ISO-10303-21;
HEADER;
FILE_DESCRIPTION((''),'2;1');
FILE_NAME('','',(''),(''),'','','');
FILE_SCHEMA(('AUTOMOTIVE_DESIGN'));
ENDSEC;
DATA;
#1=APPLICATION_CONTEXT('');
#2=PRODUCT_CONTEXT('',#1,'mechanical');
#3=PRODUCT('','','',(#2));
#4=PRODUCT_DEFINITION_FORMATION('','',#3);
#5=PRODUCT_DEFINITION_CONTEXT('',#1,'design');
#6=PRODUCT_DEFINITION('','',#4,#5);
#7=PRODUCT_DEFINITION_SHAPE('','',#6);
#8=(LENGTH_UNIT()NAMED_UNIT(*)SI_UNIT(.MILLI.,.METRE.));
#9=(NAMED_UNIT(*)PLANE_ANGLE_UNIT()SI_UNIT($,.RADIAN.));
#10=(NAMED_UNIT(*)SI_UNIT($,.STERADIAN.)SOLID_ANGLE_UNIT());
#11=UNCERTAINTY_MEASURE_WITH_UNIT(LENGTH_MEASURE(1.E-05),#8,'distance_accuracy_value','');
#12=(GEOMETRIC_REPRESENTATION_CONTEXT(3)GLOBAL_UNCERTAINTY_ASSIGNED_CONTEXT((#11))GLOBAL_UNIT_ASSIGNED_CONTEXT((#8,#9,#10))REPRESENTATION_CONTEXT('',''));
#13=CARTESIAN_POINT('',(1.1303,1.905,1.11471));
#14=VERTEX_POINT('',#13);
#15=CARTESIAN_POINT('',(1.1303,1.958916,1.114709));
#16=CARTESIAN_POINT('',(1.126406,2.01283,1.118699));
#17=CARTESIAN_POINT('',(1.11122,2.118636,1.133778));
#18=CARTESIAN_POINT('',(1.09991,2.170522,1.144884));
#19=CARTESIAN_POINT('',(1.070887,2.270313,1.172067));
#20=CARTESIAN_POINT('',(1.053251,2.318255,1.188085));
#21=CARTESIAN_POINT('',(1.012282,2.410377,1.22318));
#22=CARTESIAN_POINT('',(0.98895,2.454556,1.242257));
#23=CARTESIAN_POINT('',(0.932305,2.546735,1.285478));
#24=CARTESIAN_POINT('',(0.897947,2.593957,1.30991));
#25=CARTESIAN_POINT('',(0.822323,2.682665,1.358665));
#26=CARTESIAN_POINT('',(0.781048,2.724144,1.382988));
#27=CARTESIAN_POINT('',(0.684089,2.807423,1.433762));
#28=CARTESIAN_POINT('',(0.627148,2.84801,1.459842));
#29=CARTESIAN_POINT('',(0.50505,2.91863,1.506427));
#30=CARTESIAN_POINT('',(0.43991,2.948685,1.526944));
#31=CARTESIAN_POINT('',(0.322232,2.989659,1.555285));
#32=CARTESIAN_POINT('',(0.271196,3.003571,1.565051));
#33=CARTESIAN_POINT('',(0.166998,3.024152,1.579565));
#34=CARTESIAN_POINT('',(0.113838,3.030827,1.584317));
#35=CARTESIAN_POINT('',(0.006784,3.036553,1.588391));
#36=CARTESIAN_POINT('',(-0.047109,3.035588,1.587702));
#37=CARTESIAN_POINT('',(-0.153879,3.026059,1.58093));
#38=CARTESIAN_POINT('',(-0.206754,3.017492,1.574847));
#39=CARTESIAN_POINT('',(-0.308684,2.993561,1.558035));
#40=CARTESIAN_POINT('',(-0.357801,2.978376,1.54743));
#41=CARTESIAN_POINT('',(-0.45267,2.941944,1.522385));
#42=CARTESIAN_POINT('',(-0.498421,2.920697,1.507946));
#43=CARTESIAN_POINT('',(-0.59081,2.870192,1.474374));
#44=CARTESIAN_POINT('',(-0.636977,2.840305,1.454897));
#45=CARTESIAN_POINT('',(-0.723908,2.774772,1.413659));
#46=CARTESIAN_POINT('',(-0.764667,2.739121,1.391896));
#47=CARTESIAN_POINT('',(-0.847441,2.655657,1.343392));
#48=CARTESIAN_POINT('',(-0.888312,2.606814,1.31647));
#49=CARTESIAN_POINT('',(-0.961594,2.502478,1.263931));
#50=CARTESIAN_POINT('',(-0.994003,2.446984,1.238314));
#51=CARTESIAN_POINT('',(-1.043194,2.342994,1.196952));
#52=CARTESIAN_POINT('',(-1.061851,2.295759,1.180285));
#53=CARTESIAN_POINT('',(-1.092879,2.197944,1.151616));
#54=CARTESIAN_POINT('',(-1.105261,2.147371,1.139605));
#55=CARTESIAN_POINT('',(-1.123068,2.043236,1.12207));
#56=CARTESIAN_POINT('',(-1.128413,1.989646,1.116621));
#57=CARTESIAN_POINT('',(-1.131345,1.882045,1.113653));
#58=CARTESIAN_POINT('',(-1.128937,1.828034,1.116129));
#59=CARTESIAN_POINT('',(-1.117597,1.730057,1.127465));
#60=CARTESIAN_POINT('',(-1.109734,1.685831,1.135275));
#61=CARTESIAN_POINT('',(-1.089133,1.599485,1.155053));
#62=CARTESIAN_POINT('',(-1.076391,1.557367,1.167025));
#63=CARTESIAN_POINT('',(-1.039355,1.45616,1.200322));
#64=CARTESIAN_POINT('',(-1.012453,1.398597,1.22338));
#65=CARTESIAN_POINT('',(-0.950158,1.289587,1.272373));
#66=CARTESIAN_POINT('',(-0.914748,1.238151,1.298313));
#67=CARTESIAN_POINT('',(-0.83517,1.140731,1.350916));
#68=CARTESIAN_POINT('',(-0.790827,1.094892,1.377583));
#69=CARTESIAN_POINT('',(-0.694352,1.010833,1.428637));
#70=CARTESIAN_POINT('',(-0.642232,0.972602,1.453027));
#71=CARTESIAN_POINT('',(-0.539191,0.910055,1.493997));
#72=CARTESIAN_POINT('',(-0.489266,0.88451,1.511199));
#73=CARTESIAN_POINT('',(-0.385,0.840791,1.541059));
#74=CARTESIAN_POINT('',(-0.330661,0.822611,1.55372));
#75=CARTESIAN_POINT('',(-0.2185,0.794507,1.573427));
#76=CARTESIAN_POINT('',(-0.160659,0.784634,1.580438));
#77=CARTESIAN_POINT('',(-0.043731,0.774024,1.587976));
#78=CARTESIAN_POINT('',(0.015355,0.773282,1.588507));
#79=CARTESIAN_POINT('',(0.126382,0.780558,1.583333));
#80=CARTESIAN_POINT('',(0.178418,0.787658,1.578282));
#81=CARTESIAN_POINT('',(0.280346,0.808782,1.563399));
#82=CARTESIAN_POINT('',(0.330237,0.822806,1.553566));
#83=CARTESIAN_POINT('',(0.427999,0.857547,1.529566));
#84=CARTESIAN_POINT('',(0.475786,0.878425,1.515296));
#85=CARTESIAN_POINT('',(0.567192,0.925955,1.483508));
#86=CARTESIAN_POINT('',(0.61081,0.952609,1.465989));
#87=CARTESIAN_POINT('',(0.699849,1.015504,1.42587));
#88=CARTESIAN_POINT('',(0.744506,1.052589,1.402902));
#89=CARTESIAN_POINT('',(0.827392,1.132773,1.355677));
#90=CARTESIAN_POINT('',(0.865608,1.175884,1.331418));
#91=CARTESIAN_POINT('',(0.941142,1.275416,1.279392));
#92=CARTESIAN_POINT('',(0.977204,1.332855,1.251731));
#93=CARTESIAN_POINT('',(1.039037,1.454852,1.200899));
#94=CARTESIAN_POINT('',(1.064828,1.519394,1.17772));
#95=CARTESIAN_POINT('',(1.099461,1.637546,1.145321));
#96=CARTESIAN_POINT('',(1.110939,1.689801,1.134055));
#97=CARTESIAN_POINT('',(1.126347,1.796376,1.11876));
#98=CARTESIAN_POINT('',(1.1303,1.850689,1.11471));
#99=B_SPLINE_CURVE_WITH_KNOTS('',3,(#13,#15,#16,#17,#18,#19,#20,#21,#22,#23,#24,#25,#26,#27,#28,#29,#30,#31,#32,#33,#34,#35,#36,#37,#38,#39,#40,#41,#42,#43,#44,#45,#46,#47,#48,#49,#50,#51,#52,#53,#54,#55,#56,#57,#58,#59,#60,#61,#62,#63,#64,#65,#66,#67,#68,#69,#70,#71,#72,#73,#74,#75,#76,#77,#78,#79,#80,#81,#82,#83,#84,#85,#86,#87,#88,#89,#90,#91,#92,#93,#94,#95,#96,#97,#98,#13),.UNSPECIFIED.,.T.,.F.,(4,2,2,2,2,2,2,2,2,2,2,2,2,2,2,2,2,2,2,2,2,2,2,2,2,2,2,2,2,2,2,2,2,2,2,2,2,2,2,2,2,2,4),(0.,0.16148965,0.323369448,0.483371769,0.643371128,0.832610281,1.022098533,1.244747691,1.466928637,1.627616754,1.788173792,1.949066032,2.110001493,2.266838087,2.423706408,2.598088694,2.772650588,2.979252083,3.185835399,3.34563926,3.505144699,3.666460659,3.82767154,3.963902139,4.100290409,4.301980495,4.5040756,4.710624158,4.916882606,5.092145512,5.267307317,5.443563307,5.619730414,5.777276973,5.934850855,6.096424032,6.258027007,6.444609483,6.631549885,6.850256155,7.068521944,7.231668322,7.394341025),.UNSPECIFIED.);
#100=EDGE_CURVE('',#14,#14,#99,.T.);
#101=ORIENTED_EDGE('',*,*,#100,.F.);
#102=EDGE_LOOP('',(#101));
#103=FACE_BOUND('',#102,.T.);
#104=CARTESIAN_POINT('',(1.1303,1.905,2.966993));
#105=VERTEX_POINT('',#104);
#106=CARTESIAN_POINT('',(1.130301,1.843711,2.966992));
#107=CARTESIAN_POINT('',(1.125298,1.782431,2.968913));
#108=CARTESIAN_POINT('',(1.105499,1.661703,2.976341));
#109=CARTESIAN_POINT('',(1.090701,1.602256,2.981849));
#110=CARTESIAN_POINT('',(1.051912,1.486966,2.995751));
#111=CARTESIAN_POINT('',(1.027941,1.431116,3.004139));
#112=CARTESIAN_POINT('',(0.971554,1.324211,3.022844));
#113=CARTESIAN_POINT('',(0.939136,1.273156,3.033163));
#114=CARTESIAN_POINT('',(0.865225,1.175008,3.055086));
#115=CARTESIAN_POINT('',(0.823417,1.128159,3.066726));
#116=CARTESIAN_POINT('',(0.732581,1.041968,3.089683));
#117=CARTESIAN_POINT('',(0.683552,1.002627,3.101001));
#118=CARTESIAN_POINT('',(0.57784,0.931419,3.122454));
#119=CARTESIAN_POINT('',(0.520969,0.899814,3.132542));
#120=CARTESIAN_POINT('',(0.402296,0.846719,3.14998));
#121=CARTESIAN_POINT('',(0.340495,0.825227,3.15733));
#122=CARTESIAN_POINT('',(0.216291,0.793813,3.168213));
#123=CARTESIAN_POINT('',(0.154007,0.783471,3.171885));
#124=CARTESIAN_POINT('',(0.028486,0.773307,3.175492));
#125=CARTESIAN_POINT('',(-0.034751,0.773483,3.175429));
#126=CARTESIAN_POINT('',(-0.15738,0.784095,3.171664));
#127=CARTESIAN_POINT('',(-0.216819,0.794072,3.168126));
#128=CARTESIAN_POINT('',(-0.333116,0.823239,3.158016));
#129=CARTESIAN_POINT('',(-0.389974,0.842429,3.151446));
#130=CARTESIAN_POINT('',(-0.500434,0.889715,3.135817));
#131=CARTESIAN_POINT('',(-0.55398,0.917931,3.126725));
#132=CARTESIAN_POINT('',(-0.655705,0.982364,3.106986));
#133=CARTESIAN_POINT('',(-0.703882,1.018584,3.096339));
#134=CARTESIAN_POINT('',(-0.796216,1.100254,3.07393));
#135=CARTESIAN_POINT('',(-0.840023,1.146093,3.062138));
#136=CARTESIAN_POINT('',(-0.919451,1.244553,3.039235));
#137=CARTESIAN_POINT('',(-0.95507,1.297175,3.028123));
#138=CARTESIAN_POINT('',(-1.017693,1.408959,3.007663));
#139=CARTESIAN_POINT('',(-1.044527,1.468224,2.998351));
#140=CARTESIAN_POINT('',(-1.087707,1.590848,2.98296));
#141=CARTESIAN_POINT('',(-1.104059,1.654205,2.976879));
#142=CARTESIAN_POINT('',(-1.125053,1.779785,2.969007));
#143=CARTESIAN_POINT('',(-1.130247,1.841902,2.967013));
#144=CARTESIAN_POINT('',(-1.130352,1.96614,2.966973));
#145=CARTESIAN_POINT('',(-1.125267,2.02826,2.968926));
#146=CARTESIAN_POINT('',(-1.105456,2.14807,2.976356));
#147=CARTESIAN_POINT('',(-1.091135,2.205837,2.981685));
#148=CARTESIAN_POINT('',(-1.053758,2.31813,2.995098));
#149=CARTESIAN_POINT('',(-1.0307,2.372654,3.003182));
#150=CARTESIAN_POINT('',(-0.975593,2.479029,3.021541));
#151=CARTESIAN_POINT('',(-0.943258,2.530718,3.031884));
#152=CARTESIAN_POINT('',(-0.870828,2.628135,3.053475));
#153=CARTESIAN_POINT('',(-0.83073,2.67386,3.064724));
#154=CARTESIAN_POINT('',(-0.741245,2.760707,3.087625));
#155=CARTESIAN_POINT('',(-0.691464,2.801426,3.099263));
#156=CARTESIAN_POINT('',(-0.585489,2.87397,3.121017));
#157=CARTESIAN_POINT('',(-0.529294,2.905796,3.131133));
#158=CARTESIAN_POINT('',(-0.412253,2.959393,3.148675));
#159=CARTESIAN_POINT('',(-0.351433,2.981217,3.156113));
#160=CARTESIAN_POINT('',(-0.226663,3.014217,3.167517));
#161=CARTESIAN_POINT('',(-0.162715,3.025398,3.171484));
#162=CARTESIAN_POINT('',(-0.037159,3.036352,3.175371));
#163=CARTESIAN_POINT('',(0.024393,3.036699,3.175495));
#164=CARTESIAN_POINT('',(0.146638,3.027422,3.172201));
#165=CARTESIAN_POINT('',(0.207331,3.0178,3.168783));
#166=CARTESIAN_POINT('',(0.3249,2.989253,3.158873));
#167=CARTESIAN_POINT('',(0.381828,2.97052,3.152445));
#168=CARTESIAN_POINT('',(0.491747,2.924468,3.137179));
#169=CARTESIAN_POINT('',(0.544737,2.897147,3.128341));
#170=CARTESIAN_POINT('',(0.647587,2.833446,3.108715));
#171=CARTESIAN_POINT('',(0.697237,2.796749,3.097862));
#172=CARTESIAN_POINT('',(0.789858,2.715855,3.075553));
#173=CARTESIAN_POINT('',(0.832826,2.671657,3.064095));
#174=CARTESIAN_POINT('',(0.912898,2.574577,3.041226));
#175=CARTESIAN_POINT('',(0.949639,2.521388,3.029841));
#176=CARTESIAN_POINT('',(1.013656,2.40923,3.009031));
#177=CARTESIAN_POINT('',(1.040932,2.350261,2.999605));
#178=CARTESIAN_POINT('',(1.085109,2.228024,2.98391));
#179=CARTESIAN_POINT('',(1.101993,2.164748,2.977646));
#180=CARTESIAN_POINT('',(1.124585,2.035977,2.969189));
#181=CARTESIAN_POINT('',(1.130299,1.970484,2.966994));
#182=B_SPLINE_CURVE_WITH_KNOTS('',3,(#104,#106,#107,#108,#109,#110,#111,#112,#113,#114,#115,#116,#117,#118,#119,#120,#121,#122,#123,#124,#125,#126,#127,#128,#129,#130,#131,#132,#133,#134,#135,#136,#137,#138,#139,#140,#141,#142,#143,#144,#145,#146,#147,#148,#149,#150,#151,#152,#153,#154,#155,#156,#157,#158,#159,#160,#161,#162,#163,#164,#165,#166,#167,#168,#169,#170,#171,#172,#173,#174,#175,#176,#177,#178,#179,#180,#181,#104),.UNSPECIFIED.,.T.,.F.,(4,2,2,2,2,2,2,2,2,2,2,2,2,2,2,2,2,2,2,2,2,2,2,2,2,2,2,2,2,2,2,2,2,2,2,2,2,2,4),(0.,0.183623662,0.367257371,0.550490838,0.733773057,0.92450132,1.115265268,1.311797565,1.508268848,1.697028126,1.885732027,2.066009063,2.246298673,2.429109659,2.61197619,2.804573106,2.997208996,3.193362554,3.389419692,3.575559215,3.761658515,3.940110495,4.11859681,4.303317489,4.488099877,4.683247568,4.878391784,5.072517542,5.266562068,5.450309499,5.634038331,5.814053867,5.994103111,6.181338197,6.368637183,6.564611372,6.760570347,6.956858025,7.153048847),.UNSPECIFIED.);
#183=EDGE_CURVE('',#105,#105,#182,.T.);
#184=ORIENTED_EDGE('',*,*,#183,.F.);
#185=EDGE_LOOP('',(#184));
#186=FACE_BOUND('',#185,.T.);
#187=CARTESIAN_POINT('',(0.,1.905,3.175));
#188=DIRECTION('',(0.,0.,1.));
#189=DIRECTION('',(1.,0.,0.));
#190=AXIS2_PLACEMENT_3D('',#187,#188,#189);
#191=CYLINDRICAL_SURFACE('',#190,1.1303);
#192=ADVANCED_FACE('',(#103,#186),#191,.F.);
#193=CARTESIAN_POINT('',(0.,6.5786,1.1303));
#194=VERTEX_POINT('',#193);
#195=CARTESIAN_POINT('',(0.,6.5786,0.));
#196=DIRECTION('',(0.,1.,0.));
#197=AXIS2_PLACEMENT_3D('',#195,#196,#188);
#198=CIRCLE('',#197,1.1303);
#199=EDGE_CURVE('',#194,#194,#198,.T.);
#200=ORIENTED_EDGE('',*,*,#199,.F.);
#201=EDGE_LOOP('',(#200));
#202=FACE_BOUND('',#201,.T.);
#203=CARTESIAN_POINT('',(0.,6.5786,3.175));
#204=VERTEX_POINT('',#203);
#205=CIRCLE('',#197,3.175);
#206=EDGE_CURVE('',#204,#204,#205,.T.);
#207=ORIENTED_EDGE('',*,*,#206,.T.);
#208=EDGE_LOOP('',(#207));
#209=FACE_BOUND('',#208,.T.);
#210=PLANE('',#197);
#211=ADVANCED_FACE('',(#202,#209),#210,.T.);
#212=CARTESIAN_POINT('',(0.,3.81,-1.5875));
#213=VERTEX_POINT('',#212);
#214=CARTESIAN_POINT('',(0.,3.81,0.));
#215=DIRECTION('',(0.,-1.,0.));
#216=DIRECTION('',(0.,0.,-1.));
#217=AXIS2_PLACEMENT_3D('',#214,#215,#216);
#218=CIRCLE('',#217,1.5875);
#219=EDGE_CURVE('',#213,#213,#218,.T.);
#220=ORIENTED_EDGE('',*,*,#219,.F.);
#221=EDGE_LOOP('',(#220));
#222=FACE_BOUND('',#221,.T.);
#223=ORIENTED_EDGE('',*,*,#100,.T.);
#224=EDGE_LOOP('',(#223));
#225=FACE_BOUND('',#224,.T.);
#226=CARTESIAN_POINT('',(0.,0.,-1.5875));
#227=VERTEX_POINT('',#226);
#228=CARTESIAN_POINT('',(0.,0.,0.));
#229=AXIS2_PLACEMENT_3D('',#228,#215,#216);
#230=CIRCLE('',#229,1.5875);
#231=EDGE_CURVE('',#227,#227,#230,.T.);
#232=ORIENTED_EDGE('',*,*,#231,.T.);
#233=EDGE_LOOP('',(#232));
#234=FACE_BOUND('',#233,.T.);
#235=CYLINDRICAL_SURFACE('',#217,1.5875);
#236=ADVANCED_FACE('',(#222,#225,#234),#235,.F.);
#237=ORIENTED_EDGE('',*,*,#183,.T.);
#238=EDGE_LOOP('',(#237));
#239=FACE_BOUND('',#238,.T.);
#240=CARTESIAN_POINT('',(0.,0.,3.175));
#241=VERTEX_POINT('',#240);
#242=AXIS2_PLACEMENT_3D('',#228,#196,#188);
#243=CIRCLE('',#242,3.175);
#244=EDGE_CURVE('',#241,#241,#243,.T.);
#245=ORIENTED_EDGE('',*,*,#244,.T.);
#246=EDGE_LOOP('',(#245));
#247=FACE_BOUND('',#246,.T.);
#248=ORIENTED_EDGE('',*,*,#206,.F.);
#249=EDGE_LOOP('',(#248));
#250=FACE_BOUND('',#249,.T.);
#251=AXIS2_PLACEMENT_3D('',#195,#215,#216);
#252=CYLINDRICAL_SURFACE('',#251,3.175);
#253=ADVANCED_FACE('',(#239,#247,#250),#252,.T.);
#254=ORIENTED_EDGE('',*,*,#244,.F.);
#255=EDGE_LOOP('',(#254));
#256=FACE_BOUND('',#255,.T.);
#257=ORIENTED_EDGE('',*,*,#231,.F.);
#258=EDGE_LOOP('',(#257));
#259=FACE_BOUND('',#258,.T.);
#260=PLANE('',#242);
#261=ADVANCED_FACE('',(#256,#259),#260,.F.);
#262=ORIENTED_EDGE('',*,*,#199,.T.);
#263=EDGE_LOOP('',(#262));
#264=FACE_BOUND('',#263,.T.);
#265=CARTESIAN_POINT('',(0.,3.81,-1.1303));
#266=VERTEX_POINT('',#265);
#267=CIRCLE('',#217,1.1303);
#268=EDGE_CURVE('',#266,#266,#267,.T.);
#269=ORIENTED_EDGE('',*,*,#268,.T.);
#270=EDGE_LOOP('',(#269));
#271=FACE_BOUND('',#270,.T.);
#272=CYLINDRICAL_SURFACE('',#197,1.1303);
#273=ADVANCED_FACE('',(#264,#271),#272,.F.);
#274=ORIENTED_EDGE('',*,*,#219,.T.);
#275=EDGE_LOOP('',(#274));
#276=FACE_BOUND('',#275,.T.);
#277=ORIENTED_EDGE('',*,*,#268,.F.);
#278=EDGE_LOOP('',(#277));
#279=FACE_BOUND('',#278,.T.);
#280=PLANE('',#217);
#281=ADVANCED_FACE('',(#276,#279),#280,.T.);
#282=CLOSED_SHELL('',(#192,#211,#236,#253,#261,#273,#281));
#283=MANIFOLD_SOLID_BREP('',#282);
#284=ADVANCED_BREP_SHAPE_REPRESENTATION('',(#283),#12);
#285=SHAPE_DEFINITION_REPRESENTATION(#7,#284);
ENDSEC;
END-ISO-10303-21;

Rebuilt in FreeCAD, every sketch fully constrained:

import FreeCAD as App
import Part
import Sketcher
from FreeCAD import Vector
Q = App.Units.Quantity

doc = App.newDocument("Part")
body = doc.addObject("PartDesign::Body", "Body")

# Sketch on XZ plane
sketch1 = body.newObject("Sketcher::SketchObject", "Sketch")
sketch1.AttachmentSupport = (doc.getObject("XZ_Plane"), [""])
sketch1.MapMode = "FlatFace"
sketch1.addGeometry(Part.Circle(Vector(0, 0, 0), Vector(0, 0, 1), 3.175), False)
sketch1.addConstraint([
    Sketcher.Constraint("Coincident", 0, 3, -1, 1),
    Sketcher.Constraint("Diameter", 0, Q("0.25 in")),
])
pad1 = body.newObject("PartDesign::Pad", "Pad")
pad1.Profile = sketch1
pad1.Length = Q("0.259 in")
pad1.Reversed = True

# Sketch on XZ plane
sketch2 = body.newObject("Sketcher::SketchObject", "Sketch001")
sketch2.AttachmentSupport = (doc.getObject("XZ_Plane"), [""])
sketch2.MapMode = "FlatFace"
sketch2.addGeometry(Part.Circle(Vector(0, 0, 0), Vector(0, 0, 1), 1.5875), False)
sketch2.addConstraint([
    Sketcher.Constraint("Coincident", 0, 3, -1, 1),
    Sketcher.Constraint("Diameter", 0, Q("0.125 in")),
])
pocket1 = body.newObject("PartDesign::Pocket", "Pocket")
pocket1.Profile = sketch2
pocket1.Length = Q("0.15 in")

# Sketch on XZ plane
sketch3 = body.newObject("Sketcher::SketchObject", "Sketch002")
sketch3.AttachmentSupport = (doc.getObject("XZ_Plane"), [""])
sketch3.MapMode = "FlatFace"
sketch3.AttachmentOffset = App.Placement(Vector(0, 0, -0.259 * 25.4), App.Rotation())
sketch3.addGeometry(Part.Circle(Vector(0, 0, 0), Vector(0, 0, 1), 1.1303), False)
sketch3.addConstraint([
    Sketcher.Constraint("Coincident", 0, 3, -1, 1),
    Sketcher.Constraint("Diameter", 0, Q("0.089 in")),
])
doc.recompute()
hole = body.newObject("PartDesign::Hole", "Hole")
hole.Profile = sketch3
hole.ThreadType = "None"
hole.Diameter = Q("0.089 in")
hole.DepthType = "Dimension"
hole.Depth = Q("0.5 in")
hole.DrillPoint = "Angled"
hole.DrillPointAngle = 118
hole.Reversed = True

# Sketch on XY plane
sketch4 = body.newObject("Sketcher::SketchObject", "Sketch003")
sketch4.AttachmentSupport = (doc.getObject("XY_Plane"), [""])
sketch4.MapMode = "FlatFace"
sketch4.AttachmentOffset = App.Placement(Vector(0, 0, 0.125 * 25.4), App.Rotation())
sketch4.addGeometry(Part.Circle(Vector(0, 1.905, 0), Vector(0, 0, 1), 1.1303), False)
sketch4.addConstraint([
    Sketcher.Constraint("PointOnObject", 0, 3, -2),
    Sketcher.Constraint("Diameter", 0, Q("0.089 in")),
    Sketcher.Constraint("DistanceY", -1, 1, 0, 3, Q("0.075 in")),
])
pocket2 = body.newObject("PartDesign::Pocket", "Pocket001")
pocket2.Profile = sketch4
pocket2.Type = "UpToFirst"

doc.recompute()
